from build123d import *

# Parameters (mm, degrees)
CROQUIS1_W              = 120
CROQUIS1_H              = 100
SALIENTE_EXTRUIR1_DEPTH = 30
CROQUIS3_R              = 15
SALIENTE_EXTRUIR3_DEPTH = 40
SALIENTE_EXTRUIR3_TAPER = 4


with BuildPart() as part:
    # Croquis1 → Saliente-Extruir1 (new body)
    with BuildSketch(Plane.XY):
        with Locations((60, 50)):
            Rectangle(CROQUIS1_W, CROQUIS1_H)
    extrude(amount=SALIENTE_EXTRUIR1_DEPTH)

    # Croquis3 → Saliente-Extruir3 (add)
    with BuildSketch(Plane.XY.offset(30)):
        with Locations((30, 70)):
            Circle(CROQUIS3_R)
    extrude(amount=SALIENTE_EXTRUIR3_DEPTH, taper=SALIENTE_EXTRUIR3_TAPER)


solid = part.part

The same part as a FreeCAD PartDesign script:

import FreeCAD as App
import Part
import Sketcher


def add_polygon(sketch, points):
    """Adds a closed chain of lines whose ends are joined by coincident constraints."""
    first, n = sketch.GeometryCount, len(points)
    for a, b in zip(points, points[1:] + points[:1]):
        sketch.addGeometry(Part.LineSegment(App.Vector(*a, 0), App.Vector(*b, 0)), False)
    for i in range(n):
        sketch.addConstraint(Sketcher.Constraint("Coincident", first + i, 2, first + (i + 1) % n, 1))

doc = App.newDocument("Part")
params = doc.addObject("Spreadsheet::Sheet", "Params")
for row, (alias, value) in enumerate([
    ("sketch1_width", "120 mm"),
    ("sketch1_height", "100 mm"),
    ("pad1_length", "30 mm"),
    ("sketch2_diameter", "30 mm"),
    ("pad2_length", "40 mm"),
    ("pad2_taper", "-4 deg"),
], start=1):
    params.set(f"A{row}", alias)
    params.set(f"B{row}", "=" + value)
    params.setAlias(f"B{row}", alias)

body = doc.addObject("PartDesign::Body", "Body")

# Sketch on XY plane
sketch1 = doc.addObject("Sketcher::SketchObject", "Sketch")
body.addObject(sketch1)
sketch1.AttachmentSupport = (doc.XY_Plane, [""])
sketch1.MapMode = "FlatFace"
add_polygon(sketch1, [(0, 100), (0, 0), (120, 0), (120, 100)])  # lines 0-3
sketch1.addConstraint(Sketcher.Constraint("Vertical", 0))
sketch1.addConstraint(Sketcher.Constraint("Horizontal", 1))
sketch1.addConstraint(Sketcher.Constraint("Vertical", 2))
sketch1.addConstraint(Sketcher.Constraint("Horizontal", 3))
sketch1.addConstraint(Sketcher.Constraint("Coincident", 0, 2, -1, 1))
sketch1.addConstraint(Sketcher.Constraint("DistanceX", 1, 1, 1, 2, 120.0))
sketch1.addConstraint(Sketcher.Constraint("DistanceY", 0, 2, 0, 1, 100.0))
sketch1.setExpression("Constraints[9]", "Params.sketch1_width")
sketch1.setExpression("Constraints[10]", "Params.sketch1_height")
pad1 = doc.addObject("PartDesign::Pad", "Pad")
body.addObject(pad1)
pad1.Profile = sketch1
pad1.setExpression("Length", "Params.pad1_length")

# Sketch on XY plane
sketch2 = doc.addObject("Sketcher::SketchObject", "Sketch001")
body.addObject(sketch2)
sketch2.AttachmentSupport = (doc.XY_Plane, [""])
sketch2.MapMode = "FlatFace"
sketch2.AttachmentOffset = App.Placement(App.Vector(0, 0, 30), App.Rotation())
sketch2.addGeometry(Part.Circle(App.Vector(30, 70, 0), App.Vector(0, 0, 1), 15), False)
sketch2.addConstraint(Sketcher.Constraint("Diameter", 0, 30.0))
sketch2.addConstraint(Sketcher.Constraint("DistanceX", -1, 1, 0, 3, 30.0))
sketch2.addConstraint(Sketcher.Constraint("DistanceY", -1, 1, 0, 3, 70.0))
sketch2.setExpression("Constraints[0]", "Params.sketch2_diameter")
pad2 = doc.addObject("PartDesign::Pad", "Pad001")
body.addObject(pad2)
pad2.Profile = sketch2
pad2.setExpression("Length", "Params.pad2_length")
pad2.setExpression("TaperAngle", "Params.pad2_taper")

doc.recompute()
